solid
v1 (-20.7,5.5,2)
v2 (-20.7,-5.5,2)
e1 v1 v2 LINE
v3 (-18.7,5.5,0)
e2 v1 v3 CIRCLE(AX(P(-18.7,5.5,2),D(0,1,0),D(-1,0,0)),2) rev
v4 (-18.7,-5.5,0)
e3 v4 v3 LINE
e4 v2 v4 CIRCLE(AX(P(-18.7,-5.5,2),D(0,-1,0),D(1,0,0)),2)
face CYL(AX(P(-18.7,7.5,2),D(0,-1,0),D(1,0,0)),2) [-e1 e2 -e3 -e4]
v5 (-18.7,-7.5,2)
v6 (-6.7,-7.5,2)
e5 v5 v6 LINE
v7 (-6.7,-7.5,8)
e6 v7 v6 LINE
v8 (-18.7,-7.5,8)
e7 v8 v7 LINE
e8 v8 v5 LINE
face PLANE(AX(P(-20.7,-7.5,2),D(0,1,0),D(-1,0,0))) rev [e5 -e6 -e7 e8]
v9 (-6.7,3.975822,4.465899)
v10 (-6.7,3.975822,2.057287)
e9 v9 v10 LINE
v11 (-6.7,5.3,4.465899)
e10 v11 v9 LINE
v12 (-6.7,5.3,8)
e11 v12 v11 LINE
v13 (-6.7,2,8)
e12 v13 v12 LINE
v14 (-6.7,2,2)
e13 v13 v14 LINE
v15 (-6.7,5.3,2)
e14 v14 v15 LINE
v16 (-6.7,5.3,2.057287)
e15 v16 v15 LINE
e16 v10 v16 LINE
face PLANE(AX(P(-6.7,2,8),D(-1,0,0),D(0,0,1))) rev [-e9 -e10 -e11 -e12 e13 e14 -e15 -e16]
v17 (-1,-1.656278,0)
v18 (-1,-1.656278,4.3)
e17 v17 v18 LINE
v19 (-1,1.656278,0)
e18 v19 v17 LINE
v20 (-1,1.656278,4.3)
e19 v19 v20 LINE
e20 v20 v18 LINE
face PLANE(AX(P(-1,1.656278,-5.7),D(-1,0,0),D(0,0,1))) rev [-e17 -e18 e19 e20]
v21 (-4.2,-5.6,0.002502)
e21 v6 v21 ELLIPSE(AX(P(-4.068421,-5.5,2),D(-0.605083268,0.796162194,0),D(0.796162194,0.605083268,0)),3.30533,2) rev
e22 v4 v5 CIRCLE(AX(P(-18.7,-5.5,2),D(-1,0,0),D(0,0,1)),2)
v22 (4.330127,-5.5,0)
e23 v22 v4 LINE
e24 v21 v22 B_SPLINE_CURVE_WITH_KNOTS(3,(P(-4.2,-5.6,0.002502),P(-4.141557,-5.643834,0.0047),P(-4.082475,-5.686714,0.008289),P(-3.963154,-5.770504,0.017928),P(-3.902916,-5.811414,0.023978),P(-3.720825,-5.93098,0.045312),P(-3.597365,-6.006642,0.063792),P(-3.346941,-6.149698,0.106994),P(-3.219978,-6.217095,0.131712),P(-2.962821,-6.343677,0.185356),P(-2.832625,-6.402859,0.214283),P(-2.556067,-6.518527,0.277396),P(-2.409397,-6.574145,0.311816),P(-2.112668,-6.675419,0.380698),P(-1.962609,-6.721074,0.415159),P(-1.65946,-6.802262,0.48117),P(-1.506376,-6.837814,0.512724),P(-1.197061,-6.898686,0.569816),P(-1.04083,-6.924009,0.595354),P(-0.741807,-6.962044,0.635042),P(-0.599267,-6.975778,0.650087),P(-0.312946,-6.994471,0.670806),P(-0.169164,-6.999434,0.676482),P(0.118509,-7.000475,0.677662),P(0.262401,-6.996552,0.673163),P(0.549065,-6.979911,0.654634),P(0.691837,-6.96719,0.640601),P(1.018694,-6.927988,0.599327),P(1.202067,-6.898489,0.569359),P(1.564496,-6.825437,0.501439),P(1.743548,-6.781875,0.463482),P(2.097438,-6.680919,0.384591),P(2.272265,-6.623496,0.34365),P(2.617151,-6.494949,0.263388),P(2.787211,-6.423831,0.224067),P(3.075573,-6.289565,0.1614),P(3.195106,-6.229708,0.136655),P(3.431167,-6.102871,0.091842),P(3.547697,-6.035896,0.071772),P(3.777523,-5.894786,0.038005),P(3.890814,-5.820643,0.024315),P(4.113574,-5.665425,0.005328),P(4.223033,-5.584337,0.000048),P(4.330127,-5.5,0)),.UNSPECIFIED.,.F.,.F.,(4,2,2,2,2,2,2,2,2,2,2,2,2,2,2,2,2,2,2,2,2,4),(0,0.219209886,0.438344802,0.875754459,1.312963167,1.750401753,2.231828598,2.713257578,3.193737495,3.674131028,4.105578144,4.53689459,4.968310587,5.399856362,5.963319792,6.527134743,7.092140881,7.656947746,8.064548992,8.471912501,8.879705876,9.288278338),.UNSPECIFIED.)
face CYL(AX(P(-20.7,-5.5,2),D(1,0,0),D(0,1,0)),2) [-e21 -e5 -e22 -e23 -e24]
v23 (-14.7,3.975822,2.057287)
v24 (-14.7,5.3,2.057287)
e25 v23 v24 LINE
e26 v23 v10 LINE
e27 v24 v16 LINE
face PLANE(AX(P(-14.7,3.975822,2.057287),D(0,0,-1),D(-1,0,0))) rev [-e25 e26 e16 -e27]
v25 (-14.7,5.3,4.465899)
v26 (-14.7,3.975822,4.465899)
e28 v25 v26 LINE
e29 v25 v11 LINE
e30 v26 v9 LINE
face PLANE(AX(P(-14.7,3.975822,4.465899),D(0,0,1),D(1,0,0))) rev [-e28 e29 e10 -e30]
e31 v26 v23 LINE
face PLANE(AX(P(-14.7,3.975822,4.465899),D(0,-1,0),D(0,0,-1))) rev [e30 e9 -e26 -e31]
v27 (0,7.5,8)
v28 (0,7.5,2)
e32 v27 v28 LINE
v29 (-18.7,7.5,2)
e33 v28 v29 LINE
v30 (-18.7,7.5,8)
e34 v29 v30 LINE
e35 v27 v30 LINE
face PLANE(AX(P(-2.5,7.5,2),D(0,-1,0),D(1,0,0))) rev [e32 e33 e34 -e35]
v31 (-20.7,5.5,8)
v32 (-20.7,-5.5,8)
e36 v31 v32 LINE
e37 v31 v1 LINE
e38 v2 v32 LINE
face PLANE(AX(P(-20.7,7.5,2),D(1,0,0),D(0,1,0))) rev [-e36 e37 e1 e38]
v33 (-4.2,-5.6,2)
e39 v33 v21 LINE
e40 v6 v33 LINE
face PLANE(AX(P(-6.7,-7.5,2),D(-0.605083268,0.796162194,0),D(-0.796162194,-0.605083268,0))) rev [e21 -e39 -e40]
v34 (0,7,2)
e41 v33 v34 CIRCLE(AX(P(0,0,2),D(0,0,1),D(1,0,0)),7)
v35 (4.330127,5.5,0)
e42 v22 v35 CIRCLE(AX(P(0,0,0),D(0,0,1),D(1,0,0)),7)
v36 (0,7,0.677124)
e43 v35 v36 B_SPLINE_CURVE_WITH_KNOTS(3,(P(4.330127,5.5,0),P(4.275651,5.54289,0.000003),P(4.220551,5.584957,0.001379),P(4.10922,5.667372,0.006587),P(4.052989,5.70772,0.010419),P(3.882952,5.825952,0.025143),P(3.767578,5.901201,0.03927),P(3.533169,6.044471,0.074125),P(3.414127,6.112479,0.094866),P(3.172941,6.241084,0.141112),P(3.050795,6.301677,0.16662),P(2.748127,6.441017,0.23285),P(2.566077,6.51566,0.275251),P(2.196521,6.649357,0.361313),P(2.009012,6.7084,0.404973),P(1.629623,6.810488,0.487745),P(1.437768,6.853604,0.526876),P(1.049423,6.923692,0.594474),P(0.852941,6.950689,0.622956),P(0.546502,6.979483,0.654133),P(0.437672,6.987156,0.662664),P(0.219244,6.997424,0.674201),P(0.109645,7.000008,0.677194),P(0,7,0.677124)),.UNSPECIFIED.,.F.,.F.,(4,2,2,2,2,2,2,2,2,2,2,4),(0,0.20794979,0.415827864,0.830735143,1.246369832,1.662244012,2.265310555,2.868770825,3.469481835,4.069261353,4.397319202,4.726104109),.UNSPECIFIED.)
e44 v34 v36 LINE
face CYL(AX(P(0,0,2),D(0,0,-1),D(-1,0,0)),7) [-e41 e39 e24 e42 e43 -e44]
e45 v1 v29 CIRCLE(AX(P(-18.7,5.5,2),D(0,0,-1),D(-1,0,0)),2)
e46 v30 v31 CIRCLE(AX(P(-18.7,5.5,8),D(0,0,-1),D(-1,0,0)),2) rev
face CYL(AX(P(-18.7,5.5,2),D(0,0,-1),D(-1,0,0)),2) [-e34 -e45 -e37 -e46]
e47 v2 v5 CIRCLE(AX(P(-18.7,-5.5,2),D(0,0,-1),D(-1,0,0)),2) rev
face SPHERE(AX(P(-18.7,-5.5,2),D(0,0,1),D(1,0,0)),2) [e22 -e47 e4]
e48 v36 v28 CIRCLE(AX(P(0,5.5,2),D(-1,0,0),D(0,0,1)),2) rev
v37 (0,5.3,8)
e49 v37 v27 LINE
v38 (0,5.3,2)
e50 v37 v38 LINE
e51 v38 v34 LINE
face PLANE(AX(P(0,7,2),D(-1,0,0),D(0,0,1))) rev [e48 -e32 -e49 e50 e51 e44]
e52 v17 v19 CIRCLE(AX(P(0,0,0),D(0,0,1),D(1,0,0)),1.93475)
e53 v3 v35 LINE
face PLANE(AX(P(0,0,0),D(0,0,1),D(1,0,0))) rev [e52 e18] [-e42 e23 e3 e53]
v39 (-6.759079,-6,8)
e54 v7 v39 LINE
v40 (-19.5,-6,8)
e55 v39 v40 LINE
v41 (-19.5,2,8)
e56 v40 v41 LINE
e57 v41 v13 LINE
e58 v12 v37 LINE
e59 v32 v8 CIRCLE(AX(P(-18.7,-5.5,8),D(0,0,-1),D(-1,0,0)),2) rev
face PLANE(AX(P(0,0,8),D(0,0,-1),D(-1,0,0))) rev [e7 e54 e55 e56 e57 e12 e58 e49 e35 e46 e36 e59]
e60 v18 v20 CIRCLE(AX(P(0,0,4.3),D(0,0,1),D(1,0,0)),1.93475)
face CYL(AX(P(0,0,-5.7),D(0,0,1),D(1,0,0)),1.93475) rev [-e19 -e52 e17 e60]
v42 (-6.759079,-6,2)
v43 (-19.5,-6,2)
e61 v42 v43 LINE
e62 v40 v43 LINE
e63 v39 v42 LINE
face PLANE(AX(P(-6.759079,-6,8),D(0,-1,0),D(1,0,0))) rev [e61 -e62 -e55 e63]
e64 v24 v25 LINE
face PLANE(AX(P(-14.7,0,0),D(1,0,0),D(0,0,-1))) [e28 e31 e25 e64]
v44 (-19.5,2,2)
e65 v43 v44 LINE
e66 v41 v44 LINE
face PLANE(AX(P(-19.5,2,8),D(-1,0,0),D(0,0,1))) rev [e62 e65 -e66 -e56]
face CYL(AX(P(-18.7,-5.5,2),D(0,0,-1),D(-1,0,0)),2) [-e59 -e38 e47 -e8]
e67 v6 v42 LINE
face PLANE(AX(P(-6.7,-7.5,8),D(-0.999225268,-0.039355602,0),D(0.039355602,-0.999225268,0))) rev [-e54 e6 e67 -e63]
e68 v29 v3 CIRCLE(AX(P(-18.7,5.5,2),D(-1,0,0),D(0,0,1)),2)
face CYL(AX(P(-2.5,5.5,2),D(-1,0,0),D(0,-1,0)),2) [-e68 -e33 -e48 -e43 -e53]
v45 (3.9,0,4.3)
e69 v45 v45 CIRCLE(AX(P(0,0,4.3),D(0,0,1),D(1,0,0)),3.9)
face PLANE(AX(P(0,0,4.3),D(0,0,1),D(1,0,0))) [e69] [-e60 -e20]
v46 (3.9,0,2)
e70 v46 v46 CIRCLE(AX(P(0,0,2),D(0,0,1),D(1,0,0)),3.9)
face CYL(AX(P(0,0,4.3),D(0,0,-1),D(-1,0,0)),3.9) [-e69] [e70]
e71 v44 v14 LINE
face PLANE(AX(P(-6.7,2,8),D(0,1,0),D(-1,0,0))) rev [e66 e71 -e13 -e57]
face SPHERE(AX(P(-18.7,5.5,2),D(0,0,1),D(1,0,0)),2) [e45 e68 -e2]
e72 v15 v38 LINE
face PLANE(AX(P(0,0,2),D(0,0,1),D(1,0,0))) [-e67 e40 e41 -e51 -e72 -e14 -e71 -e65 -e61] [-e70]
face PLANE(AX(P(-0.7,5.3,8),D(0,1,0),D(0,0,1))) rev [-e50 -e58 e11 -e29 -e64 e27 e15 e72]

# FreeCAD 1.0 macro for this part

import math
import FreeCAD as App
import Part
import Sketcher
from FreeCAD import Vector


def edges_at(feature, points):
    """Names of the edges that pass closest to the given points."""
    edges = feature.Shape.Edges
    near = lambda p: min(range(len(edges)), key=lambda i: edges[i].distToShape(Part.Vertex(*p))[0])
    return sorted({f"Edge{near(p) + 1}" for p in points})


def add_polygon(sketch, points):
    """Adds a closed chain of lines whose ends are joined by coincident constraints."""
    first, n = sketch.GeometryCount, len(points)
    for a, b in zip(points, points[1:] + points[:1]):
        sketch.addGeometry(Part.LineSegment(App.Vector(*a, 0), App.Vector(*b, 0)), False)
    for i in range(n):
        sketch.addConstraint(Sketcher.Constraint("Coincident", first + i, 2, first + (i + 1) % n, 1))

doc = App.newDocument("Part")
params = doc.addObject("Spreadsheet::Sheet", "Params")
for row, (alias, value) in enumerate([
    ("sketch1_radius", "7 mm"),
    ("sketch1_width", "14 mm"),
    ("sketch1_height", "15 mm"),
    ("sketch1_width2", "20.7 mm"),
    ("sketch1_height2", "0.5 mm"),
    ("pad1_length", "2 mm"),
    ("sketch2_width", "14 mm"),
    ("sketch2_height", "15 mm"),
    ("sketch2_height2", "8 mm"),
    ("sketch2_width2", "12.8 mm"),
    ("sketch2_width3", "6.7 mm"),
    ("pad2_length", "6 mm"),
    ("sketch3_diameter", "7.8 mm"),
    ("pad3_length", "2.3 mm"),
    ("pocket1_length", "8 mm"),
    ("fillet_radius", "2 mm"),
    ("pocket2_length", "10 mm"),
], start=1):
    params.set(f"A{row}", alias)
    params.set(f"B{row}", "=" + value)
    params.setAlias(f"B{row}", alias)

body = doc.addObject("PartDesign::Body", "Body")

sketch1 = body.newObject("Sketcher::SketchObject", "Sketch")
sketch1.AttachmentSupport = (doc.getObject("XY_Plane"), [""])
sketch1.MapMode = "FlatFace"
sketch1.addGeometry([
    Part.LineSegment(Vector(-20.7, 7.5, 0), Vector(-20.7, -7.5, 0)),
    Part.LineSegment(Vector(-20.7, -7.5, 0), Vector(-6.7, -7.5, 0)),
    Part.LineSegment(Vector(-6.7, -7.5, 0), Vector(-4.2, -5.6, 0)),
    Part.ArcOfCircle(Part.Circle(Vector(0, 0, 0), Vector(0, 0, 1), 7), math.radians(-127), math.radians(0)),
    Part.ArcOfCircle(Part.Circle(Vector(0, 0, 0), Vector(0, 0, 1), 7), math.radians(0), math.radians(90)),
    Part.LineSegment(Vector(0, 7, 0), Vector(0, 7.5, 0)),
    Part.LineSegment(Vector(0, 7.5, 0), Vector(-20.7, 7.5, 0)),
], False)
sketch1.addConstraint([
    Sketcher.Constraint("Coincident", 0, 2, 1, 1),
    Sketcher.Constraint("Coincident", 1, 2, 2, 1),
    Sketcher.Constraint("Coincident", 2, 2, 3, 1),
    Sketcher.Constraint("Tangent", 3, 2, 4, 1),
    Sketcher.Constraint("Coincident", 4, 2, 5, 1),
    Sketcher.Constraint("Coincident", 5, 2, 6, 1),
    Sketcher.Constraint("Coincident", 6, 2, 0, 1),
    Sketcher.Constraint("Vertical", 0),
    Sketcher.Constraint("Horizontal", 1),
    Sketcher.Constraint("Vertical", 5),
    Sketcher.Constraint("Horizontal", 6),
    Sketcher.Constraint("Coincident", 3, 3, -1, 1),
    Sketcher.Constraint("Equal", 3, 4),
    Sketcher.Constraint("PointOnObject", 3, 2, -1),
    Sketcher.Constraint("PointOnObject", 4, 2, -2),
    Sketcher.Constraint("Radius", 3, 7.0),
    Sketcher.Constraint("DistanceX", 1, 1, 1, 2, 14.0),
    Sketcher.Constraint("DistanceY", 0, 2, 0, 1, 15.0),
    Sketcher.Constraint("DistanceX", 6, 2, 6, 1, 20.7),
    Sketcher.Constraint("DistanceY", 5, 1, 5, 2, 0.5),
    Sketcher.Constraint("DistanceX", 2, 2, -1, 1, 4.2),
])
sketch1.setExpression("Constraints[15]", "Params.sketch1_radius")
sketch1.setExpression("Constraints[16]", "Params.sketch1_width")
sketch1.setExpression("Constraints[17]", "Params.sketch1_height")
sketch1.setExpression("Constraints[18]", "Params.sketch1_width2")
sketch1.setExpression("Constraints[19]", "Params.sketch1_height2")
pad1 = body.newObject("PartDesign::Pad", "Pad")
pad1.Profile = sketch1
pad1.setExpression("Length", "Params.pad1_length")

sketch2 = body.newObject("Sketcher::SketchObject", "Sketch001")
sketch2.AttachmentSupport = (doc.getObject("XY_Plane"), [""])
sketch2.MapMode = "FlatFace"
sketch2.AttachmentOffset = App.Placement(Vector(0, 0, 2), App.Rotation())
add_polygon(sketch2, [(-20.7, 7.5), (-20.7, -7.5), (-6.7, -7.5), (-6.8, -6), (-19.5, -6), (-19.5, 2), (-6.7, 2), (-6.7, 5.3), (0, 5.3), (0, 7.5)])
sketch2.addConstraint([
    Sketcher.Constraint("Vertical", 0),
    Sketcher.Constraint("Horizontal", 1),
    Sketcher.Constraint("Horizontal", 3),
    Sketcher.Constraint("Vertical", 4),
    Sketcher.Constraint("Horizontal", 5),
    Sketcher.Constraint("Vertical", 6),
    Sketcher.Constraint("Horizontal", 7),
    Sketcher.Constraint("Vertical", 8),
    Sketcher.Constraint("Horizontal", 9),
    Sketcher.Constraint("PointOnObject", 7, 2, -2),
    Sketcher.Constraint("Vertical", 1, 2, 5, 2),
    Sketcher.Constraint("DistanceX", 1, 1, 1, 2, 14.0),
    Sketcher.Constraint("DistanceY", 0, 2, 0, 1, 15.0),
    Sketcher.Constraint("DistanceY", 4, 1, 4, 2, 8.0),
    Sketcher.Constraint("DistanceX", 5, 1, 5, 2, 12.8),
    Sketcher.Constraint("DistanceX", 7, 1, 7, 2, 6.7),
    Sketcher.Constraint("DistanceY", 6, 1, 6, 2, 3.3),
    Sketcher.Constraint("DistanceY", 8, 1, 8, 2, 2.2),
    Sketcher.Constraint("DistanceY", 2, 2, -1, 1, 6.0),
    Sketcher.Constraint("DistanceX", 3, 2, 3, 1, 12.740921),
])
sketch2.setExpression("Constraints[21]", "Params.sketch2_width")
sketch2.setExpression("Constraints[22]", "Params.sketch2_height")
sketch2.setExpression("Constraints[23]", "Params.sketch2_height2")
sketch2.setExpression("Constraints[24]", "Params.sketch2_width2")
sketch2.setExpression("Constraints[25]", "Params.sketch2_width3")
pad2 = body.newObject("PartDesign::Pad", "Pad001")
pad2.Profile = sketch2
pad2.setExpression("Length", "Params.pad2_length")

sketch3 = body.newObject("Sketcher::SketchObject", "Sketch002")
sketch3.AttachmentSupport = (doc.getObject("XY_Plane"), [""])
sketch3.MapMode = "FlatFace"
sketch3.AttachmentOffset = App.Placement(Vector(0, 0, 2), App.Rotation())
sketch3.addGeometry(Part.Circle(Vector(0, 0, 0), Vector(0, 0, 1), 3.9), False)
sketch3.addConstraint([
    Sketcher.Constraint("Coincident", 0, 3, -1, 1),
    Sketcher.Constraint("Diameter", 0, 7.8),
])
sketch3.setExpression("Constraints[1]", "Params.sketch3_diameter")
pad3 = body.newObject("PartDesign::Pad", "Pad002")
pad3.Profile = sketch3
pad3.setExpression("Length", "Params.pad3_length")

sketch4 = body.newObject("Sketcher::SketchObject", "Sketch003")
sketch4.AttachmentSupport = (doc.getObject("YZ_Plane"), [""])
sketch4.MapMode = "FlatFace"
sketch4.AttachmentOffset = App.Placement(Vector(0, 0, -6.7), App.Rotation())
add_polygon(sketch4, [(5.3, 4.5), (4, 4.5), (4, 2.1), (5.3, 2.1)])
sketch4.addConstraint([
    Sketcher.Constraint("Horizontal", 0),
    Sketcher.Constraint("Vertical", 1),
    Sketcher.Constraint("Horizontal", 2),
    Sketcher.Constraint("Vertical", 3),
    Sketcher.Constraint("DistanceX", -1, 1, 2, 2, 5.3),
    Sketcher.Constraint("DistanceX", 0, 2, 0, 1, 1.324178),
    Sketcher.Constraint("DistanceY", -1, 1, 0, 2, 4.465899),
    Sketcher.Constraint("DistanceY", 1, 2, 1, 1, 2.408612),
])
pocket1 = body.newObject("PartDesign::Pocket", "Pocket")
pocket1.Profile = sketch4
pocket1.setExpression("Length", "Params.pocket1_length")
doc.recompute()

fillet = body.newObject("PartDesign::Fillet", "Fillet")
fillet.Base = (pocket1, edges_at(pocket1, [
    (-20.7, 0, 0),
    (-20.7, 7.5, 4),
    (-13.7, -7.5, 0),
    (-10.35, 7.5, 0),
    (-20.7, -7.5, 4),
]))
fillet.setExpression("Radius", "Params.fillet_radius")

sketch5 = body.newObject("Sketcher::SketchObject", "Sketch004")
sketch5.AttachmentSupport = (doc.getObject("XY_Plane"), [""])
sketch5.MapMode = "FlatFace"
sketch5.AttachmentOffset = App.Placement(Vector(0, 0, 4.3), App.Rotation())
sketch5.addGeometry([
    Part.LineSegment(Vector(-1, 1.7, 0), Vector(-1, -1.7, 0)),
    Part.ArcOfCircle(Part.Circle(Vector(0, 0, 0), Vector(0, 0, 1), 1.9), math.radians(-121), math.radians(121)),
], False)
sketch5.addConstraint([
    Sketcher.Constraint("Coincident", 0, 1, 1, 2),
    Sketcher.Constraint("Coincident", 1, 1, 0, 2),
    Sketcher.Constraint("Vertical", 0),
    Sketcher.Constraint("Coincident", 1, 3, -1, 1),
    Sketcher.Constraint("DistanceX", 0, 1, -1, 1, 1.0),
    Sketcher.Constraint("Radius", 1, 1.93475),
])
pocket2 = body.newObject("PartDesign::Pocket", "Pocket001")
pocket2.Profile = sketch5
pocket2.setExpression("Length", "Params.pocket2_length")

doc.recompute()
